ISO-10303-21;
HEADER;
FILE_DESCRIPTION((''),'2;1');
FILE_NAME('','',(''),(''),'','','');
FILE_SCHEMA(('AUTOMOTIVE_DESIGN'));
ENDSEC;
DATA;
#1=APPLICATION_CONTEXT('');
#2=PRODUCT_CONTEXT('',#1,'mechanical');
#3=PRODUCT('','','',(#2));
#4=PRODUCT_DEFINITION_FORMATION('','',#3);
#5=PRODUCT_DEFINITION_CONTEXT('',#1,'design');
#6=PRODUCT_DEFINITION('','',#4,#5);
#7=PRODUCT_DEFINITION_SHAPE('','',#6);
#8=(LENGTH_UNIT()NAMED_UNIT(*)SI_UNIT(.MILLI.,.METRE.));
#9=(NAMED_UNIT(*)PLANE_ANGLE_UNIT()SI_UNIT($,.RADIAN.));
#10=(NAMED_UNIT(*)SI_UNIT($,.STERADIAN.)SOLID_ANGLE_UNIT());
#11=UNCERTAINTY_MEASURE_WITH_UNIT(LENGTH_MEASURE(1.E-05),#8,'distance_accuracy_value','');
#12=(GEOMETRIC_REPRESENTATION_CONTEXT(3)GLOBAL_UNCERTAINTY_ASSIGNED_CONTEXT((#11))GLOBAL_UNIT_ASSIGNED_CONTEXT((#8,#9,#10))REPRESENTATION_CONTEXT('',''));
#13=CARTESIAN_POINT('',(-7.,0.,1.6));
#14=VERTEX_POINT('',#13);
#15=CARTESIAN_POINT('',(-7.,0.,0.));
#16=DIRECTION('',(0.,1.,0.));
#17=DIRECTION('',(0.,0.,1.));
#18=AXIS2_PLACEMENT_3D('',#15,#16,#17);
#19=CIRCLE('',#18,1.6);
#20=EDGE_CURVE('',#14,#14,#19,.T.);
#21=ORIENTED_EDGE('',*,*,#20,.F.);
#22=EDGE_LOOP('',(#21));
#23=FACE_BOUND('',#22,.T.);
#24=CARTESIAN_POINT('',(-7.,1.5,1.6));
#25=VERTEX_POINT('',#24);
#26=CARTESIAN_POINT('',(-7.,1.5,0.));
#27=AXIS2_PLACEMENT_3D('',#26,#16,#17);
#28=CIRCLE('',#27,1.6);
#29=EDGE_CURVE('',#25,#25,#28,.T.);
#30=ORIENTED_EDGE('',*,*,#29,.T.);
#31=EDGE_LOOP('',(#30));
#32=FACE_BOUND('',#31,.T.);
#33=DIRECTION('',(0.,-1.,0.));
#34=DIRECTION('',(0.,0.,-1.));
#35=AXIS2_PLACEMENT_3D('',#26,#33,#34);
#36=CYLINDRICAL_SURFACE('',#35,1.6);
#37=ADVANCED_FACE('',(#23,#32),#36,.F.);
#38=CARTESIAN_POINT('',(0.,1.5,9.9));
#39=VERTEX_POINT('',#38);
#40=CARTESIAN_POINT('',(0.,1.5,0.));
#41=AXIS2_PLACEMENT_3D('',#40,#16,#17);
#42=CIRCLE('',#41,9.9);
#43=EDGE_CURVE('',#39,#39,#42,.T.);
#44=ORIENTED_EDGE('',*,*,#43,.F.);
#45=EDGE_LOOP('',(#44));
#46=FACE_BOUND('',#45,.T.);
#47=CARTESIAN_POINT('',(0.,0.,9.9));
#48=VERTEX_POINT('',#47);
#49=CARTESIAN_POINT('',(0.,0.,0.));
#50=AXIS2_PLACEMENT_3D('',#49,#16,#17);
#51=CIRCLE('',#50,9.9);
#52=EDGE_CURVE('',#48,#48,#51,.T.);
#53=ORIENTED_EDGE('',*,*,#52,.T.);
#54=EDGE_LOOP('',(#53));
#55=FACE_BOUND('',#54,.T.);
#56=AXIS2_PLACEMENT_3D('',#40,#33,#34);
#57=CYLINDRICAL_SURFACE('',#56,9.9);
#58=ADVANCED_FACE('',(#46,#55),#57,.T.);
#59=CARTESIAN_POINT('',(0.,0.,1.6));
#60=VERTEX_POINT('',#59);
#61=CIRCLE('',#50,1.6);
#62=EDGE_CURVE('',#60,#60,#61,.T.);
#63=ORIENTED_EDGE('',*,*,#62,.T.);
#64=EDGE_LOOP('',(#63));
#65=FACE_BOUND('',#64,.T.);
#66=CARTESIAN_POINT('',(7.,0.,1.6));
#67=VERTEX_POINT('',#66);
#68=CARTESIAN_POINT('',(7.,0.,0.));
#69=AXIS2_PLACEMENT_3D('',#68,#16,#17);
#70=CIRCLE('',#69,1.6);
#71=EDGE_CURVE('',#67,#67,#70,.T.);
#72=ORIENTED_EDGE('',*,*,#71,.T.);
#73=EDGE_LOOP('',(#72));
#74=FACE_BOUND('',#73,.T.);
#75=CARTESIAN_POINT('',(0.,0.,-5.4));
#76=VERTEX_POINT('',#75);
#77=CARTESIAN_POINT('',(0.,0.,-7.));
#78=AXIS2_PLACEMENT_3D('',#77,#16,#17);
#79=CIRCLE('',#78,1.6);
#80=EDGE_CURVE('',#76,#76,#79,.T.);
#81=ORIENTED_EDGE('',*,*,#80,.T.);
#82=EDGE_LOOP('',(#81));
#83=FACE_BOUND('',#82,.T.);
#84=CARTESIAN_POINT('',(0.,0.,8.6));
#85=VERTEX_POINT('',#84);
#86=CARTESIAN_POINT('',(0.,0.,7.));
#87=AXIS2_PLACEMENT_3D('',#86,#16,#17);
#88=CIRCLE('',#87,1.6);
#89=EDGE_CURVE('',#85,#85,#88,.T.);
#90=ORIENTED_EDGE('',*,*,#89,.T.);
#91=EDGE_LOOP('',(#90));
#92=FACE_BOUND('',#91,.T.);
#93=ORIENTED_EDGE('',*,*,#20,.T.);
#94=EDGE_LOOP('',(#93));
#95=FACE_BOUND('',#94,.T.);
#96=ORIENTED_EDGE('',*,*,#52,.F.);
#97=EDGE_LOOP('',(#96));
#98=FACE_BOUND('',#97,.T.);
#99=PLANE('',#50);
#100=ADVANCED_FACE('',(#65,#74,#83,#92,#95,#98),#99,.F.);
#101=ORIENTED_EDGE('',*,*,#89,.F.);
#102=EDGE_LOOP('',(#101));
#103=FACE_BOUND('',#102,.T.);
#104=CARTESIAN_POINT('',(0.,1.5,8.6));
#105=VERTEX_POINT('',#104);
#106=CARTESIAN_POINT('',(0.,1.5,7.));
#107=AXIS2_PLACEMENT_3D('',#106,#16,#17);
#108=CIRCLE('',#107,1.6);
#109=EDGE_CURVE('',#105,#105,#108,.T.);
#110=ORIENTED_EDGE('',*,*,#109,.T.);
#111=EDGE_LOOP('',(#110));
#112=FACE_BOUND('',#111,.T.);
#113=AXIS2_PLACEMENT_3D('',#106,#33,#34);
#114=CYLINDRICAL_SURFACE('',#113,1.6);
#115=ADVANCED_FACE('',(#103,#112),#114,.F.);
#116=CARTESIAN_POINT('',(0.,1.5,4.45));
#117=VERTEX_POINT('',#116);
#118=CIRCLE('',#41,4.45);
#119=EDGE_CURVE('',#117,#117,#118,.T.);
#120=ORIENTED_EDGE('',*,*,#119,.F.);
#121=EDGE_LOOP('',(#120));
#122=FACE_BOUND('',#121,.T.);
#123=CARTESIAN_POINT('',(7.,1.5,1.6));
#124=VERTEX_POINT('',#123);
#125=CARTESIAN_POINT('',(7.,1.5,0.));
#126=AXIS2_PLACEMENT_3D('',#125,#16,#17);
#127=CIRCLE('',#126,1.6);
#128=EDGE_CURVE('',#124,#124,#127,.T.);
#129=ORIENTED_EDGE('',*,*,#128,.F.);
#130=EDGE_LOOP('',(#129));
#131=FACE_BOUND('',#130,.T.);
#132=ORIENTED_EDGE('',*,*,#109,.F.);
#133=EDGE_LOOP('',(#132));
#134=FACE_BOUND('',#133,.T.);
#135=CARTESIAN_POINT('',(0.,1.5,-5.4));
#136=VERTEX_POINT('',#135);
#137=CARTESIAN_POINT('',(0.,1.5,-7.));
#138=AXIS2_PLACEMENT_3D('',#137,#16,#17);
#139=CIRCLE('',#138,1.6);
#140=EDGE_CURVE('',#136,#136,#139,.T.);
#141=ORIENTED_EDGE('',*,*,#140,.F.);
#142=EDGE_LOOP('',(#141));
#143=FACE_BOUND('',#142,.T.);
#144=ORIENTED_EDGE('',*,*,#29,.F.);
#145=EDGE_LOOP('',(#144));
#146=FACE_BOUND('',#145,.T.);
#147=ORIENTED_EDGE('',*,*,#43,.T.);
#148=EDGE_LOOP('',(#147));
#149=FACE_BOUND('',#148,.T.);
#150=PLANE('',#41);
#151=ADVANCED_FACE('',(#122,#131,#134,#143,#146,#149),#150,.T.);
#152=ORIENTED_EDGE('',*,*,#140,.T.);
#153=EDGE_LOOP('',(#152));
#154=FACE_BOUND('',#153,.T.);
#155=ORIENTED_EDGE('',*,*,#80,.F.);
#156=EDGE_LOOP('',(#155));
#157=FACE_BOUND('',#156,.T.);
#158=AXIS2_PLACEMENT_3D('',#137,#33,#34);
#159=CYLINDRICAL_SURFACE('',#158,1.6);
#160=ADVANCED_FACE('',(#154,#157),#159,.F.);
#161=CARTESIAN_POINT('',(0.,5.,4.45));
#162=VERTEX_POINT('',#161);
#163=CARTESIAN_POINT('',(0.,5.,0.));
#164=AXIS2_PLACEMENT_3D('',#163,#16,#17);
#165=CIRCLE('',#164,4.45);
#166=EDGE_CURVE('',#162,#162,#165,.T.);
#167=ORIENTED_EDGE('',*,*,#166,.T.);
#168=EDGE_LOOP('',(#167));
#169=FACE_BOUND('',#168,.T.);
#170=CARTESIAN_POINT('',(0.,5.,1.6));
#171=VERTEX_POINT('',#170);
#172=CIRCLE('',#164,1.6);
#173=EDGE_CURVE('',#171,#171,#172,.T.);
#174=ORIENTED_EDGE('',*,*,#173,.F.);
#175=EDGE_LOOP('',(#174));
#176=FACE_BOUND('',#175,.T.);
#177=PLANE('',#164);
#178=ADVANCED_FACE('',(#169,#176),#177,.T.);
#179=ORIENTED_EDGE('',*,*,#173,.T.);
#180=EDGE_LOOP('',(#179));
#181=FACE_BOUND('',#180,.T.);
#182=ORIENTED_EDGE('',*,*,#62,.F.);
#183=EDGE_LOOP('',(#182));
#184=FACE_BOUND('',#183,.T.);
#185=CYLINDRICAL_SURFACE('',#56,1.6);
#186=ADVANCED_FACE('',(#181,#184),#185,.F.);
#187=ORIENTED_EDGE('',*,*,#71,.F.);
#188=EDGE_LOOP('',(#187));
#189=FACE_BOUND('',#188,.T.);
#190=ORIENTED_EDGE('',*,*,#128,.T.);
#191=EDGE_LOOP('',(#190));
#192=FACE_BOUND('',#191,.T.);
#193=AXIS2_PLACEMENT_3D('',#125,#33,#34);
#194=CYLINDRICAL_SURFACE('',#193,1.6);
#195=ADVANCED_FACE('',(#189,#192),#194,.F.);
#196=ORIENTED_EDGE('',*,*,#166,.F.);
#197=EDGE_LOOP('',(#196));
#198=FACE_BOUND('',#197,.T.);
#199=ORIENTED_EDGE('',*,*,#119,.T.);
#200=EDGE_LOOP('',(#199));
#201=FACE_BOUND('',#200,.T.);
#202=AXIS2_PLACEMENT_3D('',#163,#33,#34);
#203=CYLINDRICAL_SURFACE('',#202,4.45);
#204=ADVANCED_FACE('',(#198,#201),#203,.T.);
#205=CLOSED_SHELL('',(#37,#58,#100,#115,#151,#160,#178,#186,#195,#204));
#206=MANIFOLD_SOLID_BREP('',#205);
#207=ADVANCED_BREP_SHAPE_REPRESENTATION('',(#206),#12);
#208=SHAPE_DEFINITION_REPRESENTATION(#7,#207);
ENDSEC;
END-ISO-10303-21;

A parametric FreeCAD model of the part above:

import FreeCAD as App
import Part
import Sketcher
Q = App.Units.Quantity

doc = App.newDocument("Part")
params = doc.addObject("Spreadsheet::Sheet", "Params")
for row, (alias, value) in enumerate([
    ("sketch1_diameter", "19.8 mm"),
    ("sketch1_diameter2", "3.2 mm"),
    ("pad1_length", "1.5 mm"),
    ("sketch2_diameter", "8.9 mm"),
    ("sketch2_diameter2", "3.2 mm"),
    ("pad2_length", "3.5 mm"),
], start=1):
    params.set(f"A{row}", alias)
    params.set(f"B{row}", "=" + value)
    params.setAlias(f"B{row}", alias)

body = doc.addObject("PartDesign::Body", "Body")

# Sketch on XZ plane
sketch1 = body.newObject("Sketcher::SketchObject", "Sketch")
sketch1.AttachmentSupport = (doc.getObject("XZ_Plane"), [""])
sketch1.MapMode = "FlatFace"
sketch1.addGeometry(Part.Circle(App.Vector(0, 0, 0), App.Vector(0, 0, 1), 9.9), False)
sketch1.addGeometry(Part.Circle(App.Vector(0, 7, 0), App.Vector(0, 0, 1), 1.6), False)
sketch1.addGeometry(Part.Circle(App.Vector(-7, 0, 0), App.Vector(0, 0, 1), 1.6), False)
sketch1.addGeometry(Part.Circle(App.Vector(0, 0, 0), App.Vector(0, 0, 1), 1.6), False)
sketch1.addGeometry(Part.Circle(App.Vector(0, -7, 0), App.Vector(0, 0, 1), 1.6), False)
sketch1.addGeometry(Part.Circle(App.Vector(7, 0, 0), App.Vector(0, 0, 1), 1.6), False)
sketch1.addConstraint(Sketcher.Constraint("Coincident", 0, 3, -1, 1))
sketch1.addConstraint(Sketcher.Constraint("Coincident", 3, 3, -1, 1))
sketch1.addConstraint(Sketcher.Constraint("Equal", 1, 2))
sketch1.addConstraint(Sketcher.Constraint("Equal", 2, 3))
sketch1.addConstraint(Sketcher.Constraint("Equal", 3, 4))
sketch1.addConstraint(Sketcher.Constraint("Equal", 4, 5))
sketch1.addConstraint(Sketcher.Constraint("Symmetric", 1, 3, 4, 3, -1, 1))
sketch1.addConstraint(Sketcher.Constraint("Symmetric", 2, 3, 5, 3, -1, 1))
sketch1.addConstraint(Sketcher.Constraint("PointOnObject", 1, 3, -2))
sketch1.addConstraint(Sketcher.Constraint("PointOnObject", 2, 3, -1))
sketch1.addConstraint(Sketcher.Constraint("Diameter", 0, Q("19.8 mm")))
sketch1.addConstraint(Sketcher.Constraint("Diameter", 1, Q("3.2 mm")))
sketch1.addConstraint(Sketcher.Constraint("DistanceY", -1, 1, 1, 3, Q("7 mm")))
sketch1.addConstraint(Sketcher.Constraint("DistanceX", 2, 3, -1, 1, Q("7 mm")))
sketch1.setExpression("Constraints[10]", "Params.sketch1_diameter")
sketch1.setExpression("Constraints[11]", "Params.sketch1_diameter2")
pad1 = body.newObject("PartDesign::Pad", "Pad")
pad1.Profile = sketch1
pad1.setExpression("Length", "Params.pad1_length")
pad1.Reversed = True

# Sketch on XZ plane
sketch2 = body.newObject("Sketcher::SketchObject", "Sketch001")
sketch2.AttachmentSupport = (doc.getObject("XZ_Plane"), [""])
sketch2.MapMode = "FlatFace"
sketch2.AttachmentOffset = App.Placement(App.Vector(0, 0, -1.5), App.Rotation())
sketch2.addGeometry(Part.Circle(App.Vector(0, 0, 0), App.Vector(0, 0, 1), 4.5), False)
sketch2.addGeometry(Part.Circle(App.Vector(0, 0, 0), App.Vector(0, 0, 1), 1.6), False)
sketch2.addConstraint(Sketcher.Constraint("Coincident", 0, 3, -1, 1))
sketch2.addConstraint(Sketcher.Constraint("Coincident", 1, 3, -1, 1))
sketch2.addConstraint(Sketcher.Constraint("Diameter", 0, Q("8.9 mm")))
sketch2.addConstraint(Sketcher.Constraint("Diameter", 1, Q("3.2 mm")))
sketch2.setExpression("Constraints[2]", "Params.sketch2_diameter")
sketch2.setExpression("Constraints[3]", "Params.sketch2_diameter2")
pad2 = body.newObject("PartDesign::Pad", "Pad001")
pad2.Profile = sketch2
pad2.setExpression("Length", "Params.pad2_length")
pad2.Reversed = True

doc.recompute()
